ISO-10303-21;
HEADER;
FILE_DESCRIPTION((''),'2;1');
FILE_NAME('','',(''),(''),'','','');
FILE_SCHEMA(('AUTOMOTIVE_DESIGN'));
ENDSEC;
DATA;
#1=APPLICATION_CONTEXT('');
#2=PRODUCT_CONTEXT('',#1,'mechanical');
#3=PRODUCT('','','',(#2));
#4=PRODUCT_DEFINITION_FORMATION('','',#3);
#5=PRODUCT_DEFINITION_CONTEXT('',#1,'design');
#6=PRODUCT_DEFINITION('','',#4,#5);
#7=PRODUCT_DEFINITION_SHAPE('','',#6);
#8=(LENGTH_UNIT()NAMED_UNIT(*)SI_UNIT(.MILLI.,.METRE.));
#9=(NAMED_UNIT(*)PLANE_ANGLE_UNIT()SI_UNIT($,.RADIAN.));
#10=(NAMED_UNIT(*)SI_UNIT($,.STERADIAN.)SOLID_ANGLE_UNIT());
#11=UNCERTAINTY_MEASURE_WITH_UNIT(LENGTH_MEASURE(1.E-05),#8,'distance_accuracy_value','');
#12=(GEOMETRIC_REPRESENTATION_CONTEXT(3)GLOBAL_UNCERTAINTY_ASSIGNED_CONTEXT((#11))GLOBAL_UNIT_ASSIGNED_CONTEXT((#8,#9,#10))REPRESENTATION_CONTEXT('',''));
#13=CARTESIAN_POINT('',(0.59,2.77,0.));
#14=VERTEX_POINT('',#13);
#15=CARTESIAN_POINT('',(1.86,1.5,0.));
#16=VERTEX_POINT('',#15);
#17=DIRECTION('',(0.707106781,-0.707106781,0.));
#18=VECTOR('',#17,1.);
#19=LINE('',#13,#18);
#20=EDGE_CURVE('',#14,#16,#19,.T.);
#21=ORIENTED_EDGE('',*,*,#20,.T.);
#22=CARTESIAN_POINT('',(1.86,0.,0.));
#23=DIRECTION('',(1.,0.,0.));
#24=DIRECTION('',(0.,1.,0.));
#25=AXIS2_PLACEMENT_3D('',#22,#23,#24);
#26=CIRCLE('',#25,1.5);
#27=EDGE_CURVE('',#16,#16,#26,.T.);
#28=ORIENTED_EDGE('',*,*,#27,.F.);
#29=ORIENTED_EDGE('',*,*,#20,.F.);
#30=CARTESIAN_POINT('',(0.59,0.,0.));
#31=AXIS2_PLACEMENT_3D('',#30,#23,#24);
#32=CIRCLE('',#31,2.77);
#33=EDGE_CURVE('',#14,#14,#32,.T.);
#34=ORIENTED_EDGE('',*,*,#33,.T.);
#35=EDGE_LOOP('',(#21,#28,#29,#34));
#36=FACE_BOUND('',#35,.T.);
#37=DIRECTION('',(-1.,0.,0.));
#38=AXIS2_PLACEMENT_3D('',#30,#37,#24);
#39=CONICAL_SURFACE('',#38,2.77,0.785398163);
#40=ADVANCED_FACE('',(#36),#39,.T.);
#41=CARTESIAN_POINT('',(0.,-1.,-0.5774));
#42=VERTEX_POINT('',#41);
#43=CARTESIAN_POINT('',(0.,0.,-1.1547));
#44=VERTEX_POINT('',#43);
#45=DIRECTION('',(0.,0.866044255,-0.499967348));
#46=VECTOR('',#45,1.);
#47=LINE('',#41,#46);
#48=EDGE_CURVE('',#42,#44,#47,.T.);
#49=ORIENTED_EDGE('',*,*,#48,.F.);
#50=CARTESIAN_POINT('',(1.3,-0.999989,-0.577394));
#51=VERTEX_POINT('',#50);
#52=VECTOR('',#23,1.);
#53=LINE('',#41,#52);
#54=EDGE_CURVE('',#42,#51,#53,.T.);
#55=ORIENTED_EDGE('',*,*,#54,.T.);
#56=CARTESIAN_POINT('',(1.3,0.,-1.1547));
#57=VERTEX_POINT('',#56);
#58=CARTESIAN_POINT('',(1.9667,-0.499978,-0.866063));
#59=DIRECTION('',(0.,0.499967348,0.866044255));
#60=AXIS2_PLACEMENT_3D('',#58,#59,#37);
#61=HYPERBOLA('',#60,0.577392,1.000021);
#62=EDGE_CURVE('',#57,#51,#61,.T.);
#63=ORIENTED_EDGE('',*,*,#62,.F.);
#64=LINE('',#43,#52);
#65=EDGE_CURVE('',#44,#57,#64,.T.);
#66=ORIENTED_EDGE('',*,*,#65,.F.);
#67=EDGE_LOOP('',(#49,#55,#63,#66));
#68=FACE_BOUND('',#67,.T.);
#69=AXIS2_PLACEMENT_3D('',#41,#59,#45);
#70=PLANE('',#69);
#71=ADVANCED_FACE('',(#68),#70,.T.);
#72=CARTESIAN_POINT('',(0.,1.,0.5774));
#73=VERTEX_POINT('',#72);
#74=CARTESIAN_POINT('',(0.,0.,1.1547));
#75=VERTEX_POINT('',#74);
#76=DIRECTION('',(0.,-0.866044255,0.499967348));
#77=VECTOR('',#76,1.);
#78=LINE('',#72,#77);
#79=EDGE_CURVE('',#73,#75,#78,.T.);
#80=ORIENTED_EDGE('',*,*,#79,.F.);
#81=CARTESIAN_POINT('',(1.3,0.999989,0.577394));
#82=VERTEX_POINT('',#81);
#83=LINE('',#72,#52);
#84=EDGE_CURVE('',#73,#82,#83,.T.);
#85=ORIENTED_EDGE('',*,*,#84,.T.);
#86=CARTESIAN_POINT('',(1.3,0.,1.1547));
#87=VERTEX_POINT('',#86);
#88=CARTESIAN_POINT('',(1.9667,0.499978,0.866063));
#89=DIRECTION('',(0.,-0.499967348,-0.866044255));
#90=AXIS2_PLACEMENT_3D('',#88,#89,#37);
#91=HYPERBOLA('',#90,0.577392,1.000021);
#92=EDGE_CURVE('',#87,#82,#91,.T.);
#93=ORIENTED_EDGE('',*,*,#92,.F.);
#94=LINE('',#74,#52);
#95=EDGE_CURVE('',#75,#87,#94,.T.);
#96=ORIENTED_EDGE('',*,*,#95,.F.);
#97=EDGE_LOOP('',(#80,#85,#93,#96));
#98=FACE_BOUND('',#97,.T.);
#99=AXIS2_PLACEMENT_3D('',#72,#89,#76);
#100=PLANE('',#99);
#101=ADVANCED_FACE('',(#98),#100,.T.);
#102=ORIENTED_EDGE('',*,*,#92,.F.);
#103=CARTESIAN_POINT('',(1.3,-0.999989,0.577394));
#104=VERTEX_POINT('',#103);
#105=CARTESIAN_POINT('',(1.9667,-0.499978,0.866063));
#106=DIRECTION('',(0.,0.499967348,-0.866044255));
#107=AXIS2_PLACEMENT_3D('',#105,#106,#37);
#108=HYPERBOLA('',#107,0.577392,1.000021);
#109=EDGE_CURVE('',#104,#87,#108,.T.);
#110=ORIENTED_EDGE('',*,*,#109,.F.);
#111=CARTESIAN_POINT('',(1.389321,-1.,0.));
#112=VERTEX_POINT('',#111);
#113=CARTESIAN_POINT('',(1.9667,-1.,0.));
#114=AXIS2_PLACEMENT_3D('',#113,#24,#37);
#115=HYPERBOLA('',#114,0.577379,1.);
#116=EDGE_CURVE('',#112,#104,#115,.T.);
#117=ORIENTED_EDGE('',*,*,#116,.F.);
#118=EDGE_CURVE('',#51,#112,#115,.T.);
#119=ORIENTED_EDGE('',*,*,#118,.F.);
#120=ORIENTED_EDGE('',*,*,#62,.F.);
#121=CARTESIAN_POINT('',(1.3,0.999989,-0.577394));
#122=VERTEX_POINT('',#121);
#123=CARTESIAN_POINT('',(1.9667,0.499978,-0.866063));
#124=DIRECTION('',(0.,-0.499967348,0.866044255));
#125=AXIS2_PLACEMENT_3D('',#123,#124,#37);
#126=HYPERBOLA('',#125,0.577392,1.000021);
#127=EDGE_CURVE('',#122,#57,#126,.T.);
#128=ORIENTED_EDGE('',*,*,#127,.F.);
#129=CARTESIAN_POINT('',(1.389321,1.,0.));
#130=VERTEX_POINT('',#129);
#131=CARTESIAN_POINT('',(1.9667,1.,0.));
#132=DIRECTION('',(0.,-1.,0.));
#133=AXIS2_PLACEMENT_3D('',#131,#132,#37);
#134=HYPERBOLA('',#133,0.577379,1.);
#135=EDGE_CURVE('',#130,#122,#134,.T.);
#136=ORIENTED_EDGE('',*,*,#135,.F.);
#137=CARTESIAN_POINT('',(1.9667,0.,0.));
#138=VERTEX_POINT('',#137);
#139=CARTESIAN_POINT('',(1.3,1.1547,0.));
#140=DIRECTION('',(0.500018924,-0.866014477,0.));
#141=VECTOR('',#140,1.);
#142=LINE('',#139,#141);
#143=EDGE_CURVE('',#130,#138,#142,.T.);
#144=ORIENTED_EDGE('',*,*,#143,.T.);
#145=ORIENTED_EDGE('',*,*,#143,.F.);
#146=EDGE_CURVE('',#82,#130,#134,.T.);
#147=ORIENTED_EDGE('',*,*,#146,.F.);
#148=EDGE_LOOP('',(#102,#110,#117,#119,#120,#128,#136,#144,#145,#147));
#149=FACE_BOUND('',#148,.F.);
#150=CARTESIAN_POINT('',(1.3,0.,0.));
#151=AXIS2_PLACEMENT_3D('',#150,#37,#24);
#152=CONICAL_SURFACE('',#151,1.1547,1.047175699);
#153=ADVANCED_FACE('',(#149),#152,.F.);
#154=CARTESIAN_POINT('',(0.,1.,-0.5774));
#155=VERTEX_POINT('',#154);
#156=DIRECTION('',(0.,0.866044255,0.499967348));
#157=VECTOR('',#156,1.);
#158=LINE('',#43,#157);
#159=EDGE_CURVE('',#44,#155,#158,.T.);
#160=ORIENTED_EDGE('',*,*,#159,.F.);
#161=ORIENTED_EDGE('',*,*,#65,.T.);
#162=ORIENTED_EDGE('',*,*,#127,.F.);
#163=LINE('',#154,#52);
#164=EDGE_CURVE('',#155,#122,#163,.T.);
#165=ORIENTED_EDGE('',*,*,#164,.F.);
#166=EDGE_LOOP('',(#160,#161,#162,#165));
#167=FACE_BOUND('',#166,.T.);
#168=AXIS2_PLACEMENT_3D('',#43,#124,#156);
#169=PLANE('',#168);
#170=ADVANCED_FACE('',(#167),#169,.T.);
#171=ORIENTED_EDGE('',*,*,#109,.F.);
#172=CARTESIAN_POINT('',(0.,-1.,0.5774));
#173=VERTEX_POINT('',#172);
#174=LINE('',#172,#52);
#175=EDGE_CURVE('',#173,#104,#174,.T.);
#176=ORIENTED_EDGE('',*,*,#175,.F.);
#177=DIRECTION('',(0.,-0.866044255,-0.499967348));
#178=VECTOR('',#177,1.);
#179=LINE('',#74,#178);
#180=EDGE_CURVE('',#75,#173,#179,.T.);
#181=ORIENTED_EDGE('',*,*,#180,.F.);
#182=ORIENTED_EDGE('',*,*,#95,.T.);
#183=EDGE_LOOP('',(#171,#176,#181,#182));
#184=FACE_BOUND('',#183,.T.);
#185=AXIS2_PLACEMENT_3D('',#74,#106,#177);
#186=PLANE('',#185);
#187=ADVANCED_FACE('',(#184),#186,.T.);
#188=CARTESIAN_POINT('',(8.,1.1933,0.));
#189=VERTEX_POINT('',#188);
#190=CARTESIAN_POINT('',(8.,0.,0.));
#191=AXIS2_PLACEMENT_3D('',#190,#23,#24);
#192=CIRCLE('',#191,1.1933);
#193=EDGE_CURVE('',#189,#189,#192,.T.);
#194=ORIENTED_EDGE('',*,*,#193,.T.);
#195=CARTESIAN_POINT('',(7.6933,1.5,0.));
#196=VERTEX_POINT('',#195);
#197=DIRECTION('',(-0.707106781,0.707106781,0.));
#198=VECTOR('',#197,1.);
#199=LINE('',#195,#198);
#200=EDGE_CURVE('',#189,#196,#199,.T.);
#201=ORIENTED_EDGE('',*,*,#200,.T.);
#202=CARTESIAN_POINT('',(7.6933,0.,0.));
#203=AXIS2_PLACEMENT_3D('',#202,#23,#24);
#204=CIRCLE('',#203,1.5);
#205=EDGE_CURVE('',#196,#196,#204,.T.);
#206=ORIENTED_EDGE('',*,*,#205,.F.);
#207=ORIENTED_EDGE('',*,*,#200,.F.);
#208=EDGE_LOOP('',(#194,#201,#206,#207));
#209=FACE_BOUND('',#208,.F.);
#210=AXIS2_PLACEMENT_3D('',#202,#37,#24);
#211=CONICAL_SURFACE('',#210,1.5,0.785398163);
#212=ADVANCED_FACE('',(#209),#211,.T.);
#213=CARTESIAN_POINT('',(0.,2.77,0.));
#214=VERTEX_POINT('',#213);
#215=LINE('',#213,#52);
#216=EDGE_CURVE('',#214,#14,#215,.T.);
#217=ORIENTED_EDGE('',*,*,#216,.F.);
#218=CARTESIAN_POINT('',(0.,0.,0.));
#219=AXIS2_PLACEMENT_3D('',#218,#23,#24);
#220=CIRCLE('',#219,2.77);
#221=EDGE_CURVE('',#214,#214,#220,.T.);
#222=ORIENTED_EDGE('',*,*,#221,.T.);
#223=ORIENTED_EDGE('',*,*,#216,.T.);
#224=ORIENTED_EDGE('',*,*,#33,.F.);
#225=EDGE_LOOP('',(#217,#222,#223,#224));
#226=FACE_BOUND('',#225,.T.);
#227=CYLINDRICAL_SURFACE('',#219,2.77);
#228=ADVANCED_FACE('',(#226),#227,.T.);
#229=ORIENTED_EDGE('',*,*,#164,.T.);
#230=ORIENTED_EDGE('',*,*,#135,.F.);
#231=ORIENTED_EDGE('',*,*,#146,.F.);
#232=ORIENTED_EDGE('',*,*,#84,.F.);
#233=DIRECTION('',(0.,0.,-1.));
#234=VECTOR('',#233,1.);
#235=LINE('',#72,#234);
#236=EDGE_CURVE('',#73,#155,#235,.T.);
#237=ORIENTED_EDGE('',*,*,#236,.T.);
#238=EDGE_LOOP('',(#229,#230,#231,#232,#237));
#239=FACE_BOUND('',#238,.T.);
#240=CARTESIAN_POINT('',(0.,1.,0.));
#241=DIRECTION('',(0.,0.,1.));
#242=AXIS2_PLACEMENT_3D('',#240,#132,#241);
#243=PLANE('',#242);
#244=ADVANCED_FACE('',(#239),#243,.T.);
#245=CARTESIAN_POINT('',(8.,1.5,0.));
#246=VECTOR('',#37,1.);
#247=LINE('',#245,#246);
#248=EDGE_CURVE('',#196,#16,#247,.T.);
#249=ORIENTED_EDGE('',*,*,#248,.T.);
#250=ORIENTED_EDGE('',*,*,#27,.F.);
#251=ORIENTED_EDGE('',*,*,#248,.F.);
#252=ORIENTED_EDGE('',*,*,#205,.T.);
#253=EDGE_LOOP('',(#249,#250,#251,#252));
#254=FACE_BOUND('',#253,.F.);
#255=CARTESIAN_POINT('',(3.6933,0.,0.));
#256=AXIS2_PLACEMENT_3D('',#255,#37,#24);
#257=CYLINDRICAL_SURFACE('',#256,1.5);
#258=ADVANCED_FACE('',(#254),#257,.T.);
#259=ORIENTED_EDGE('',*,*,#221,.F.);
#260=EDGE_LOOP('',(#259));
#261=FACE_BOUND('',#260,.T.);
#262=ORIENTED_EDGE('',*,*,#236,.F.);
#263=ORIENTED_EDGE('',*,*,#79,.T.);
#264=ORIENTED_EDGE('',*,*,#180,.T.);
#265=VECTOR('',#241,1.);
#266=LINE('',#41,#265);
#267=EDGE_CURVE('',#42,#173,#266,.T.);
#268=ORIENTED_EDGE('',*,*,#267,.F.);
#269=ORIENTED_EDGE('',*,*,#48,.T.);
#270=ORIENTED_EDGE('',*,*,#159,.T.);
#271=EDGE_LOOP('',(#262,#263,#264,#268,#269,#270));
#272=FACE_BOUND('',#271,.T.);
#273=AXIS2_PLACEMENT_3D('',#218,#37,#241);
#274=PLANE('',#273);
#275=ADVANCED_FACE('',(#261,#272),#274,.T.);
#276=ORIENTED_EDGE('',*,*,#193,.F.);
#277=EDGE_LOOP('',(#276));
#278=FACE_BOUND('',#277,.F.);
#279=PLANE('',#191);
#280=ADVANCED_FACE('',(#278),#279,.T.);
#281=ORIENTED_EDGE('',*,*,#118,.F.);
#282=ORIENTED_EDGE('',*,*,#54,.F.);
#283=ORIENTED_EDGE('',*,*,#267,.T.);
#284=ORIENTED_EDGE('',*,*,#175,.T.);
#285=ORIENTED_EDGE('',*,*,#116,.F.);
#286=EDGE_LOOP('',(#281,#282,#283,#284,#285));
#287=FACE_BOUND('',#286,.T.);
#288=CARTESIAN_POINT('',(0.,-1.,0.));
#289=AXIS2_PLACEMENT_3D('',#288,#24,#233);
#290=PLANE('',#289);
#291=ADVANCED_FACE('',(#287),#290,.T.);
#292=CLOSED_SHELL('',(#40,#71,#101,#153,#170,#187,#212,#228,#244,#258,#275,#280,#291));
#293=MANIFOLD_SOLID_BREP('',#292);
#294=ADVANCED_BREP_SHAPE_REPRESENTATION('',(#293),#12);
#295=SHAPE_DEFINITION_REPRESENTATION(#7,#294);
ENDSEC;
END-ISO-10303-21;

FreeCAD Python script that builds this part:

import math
import FreeCAD as App
import Part
import Sketcher
from FreeCAD import Vector
Q = App.Units.Quantity


def edges_at(feature, points):
    """Names of the edges that pass closest to the given points."""
    edges = feature.Shape.Edges
    near = lambda p: min(range(len(edges)), key=lambda i: edges[i].distToShape(Part.Vertex(*p))[0])
    return sorted({f"Edge{near(p) + 1}" for p in points})

doc = App.newDocument("Part")
body = doc.addObject("PartDesign::Body", "Body")

# Sketch on XY plane
sketch1 = body.newObject("Sketcher::SketchObject", "Sketch")
sketch1.AttachmentSupport = (doc.getObject("XY_Plane"), [""])
sketch1.MapMode = "FlatFace"
sketch1.addGeometry([
    Part.LineSegment(Vector(2, 0, 0), Vector(8, 0, 0)),  # 0
    Part.LineSegment(Vector(8, 0, 0), Vector(8, 1.5, 0)),  # 1
    Part.LineSegment(Vector(8, 1.5, 0), Vector(1.9, 1.5, 0)),  # 2
    Part.LineSegment(Vector(1.9, 1.5, 0), Vector(0.6, 2.8, 0)),  # 3
    Part.LineSegment(Vector(0.6, 2.8, 0), Vector(0, 2.8, 0)),  # 4
    Part.LineSegment(Vector(0, 2.8, 0), Vector(0, 1.2, 0)),  # 5
    Part.LineSegment(Vector(0, 1.2, 0), Vector(1.3, 1.2, 0)),  # 6
    Part.LineSegment(Vector(1.3, 1.2, 0), Vector(2, 0, 0)),  # 7
], False)
sketch1.addConstraint([
    Sketcher.Constraint("Coincident", 0, 2, 1, 1),
    Sketcher.Constraint("Coincident", 1, 2, 2, 1),
    Sketcher.Constraint("Coincident", 2, 2, 3, 1),
    Sketcher.Constraint("Coincident", 3, 2, 4, 1),
    Sketcher.Constraint("Coincident", 4, 2, 5, 1),
    Sketcher.Constraint("Coincident", 5, 2, 6, 1),
    Sketcher.Constraint("Coincident", 6, 2, 7, 1),
    Sketcher.Constraint("Coincident", 7, 2, 0, 1),
    Sketcher.Constraint("Horizontal", 0),
    Sketcher.Constraint("Vertical", 1),
    Sketcher.Constraint("Horizontal", 2),
    Sketcher.Constraint("Horizontal", 4),
    Sketcher.Constraint("Vertical", 5),
    Sketcher.Constraint("Horizontal", 6),
    Sketcher.Constraint("PointOnObject", 0, 2, -1),
    Sketcher.Constraint("PointOnObject", 4, 2, -2),
    Sketcher.Constraint("DistanceX", 6, 1, 6, 2, 1.3),
    Sketcher.Constraint("DistanceX", -1, 1, 0, 2, 8.0),
    Sketcher.Constraint("DistanceX", -1, 1, 2, 2, 1.86),
    Sketcher.Constraint("Angle", 3, Q("135 deg")),
    Sketcher.Constraint("DistanceY", 1, 1, 1, 2, 1.5),
    Sketcher.Constraint("DistanceX", 4, 2, 4, 1, 0.59),
    Sketcher.Constraint("DistanceX", 0, 1, 0, 2, 6.0333),
    Sketcher.Constraint("DistanceY", 5, 2, 5, 1, 1.6153),
])
revolution = body.newObject("PartDesign::Revolution", "Revolution")
revolution.Profile = sketch1
revolution.ReferenceAxis = (sketch1, ["H_Axis"])
revolution.Angle = 360

# Sketch on YZ plane
sketch2 = body.newObject("Sketcher::SketchObject", "Sketch001")
sketch2.AttachmentSupport = (doc.getObject("YZ_Plane"), [""])
sketch2.MapMode = "FlatFace"
sketch2.addGeometry([
    Part.LineSegment(Vector(1, 0.6, 0), Vector(0, 1.2, 0)),  # 0
    Part.ArcOfCircle(Part.Circle(Vector(0, 0, 0), Vector(0, 0, 1), 1.2), math.radians(30), math.radians(90)),  # 1
    Part.ArcOfCircle(Part.Circle(Vector(0, 0, 0), Vector(0, 0, 1), 1.2), math.radians(90), math.radians(150)),  # 2
    Part.LineSegment(Vector(0, 1.2, 0), Vector(-1, 0.6, 0)),  # 3
    Part.ArcOfCircle(Part.Circle(Vector(0, 0, 0), Vector(0, 0, 1), 1.2), math.radians(-30), math.radians(30)),  # 4
    Part.LineSegment(Vector(1, 0.6, 0), Vector(1, -0.6, 0)),  # 5
    Part.LineSegment(Vector(-1, 0.6, 0), Vector(-1, -0.6, 0)),  # 6
    Part.ArcOfCircle(Part.Circle(Vector(0, 0, 0), Vector(0, 0, 1), 1.2), math.radians(150), math.radians(210)),  # 7
    Part.LineSegment(Vector(-1, -0.6, 0), Vector(0, -1.2, 0)),  # 8
    Part.ArcOfCircle(Part.Circle(Vector(0, 0, 0), Vector(0, 0, 1), 1.2), math.radians(-150), math.radians(-90)),  # 9
    Part.ArcOfCircle(Part.Circle(Vector(0, 0, 0), Vector(0, 0, 1), 1.2), math.radians(-90), math.radians(-30)),  # 10
    Part.LineSegment(Vector(0, -1.2, 0), Vector(1, -0.6, 0)),  # 11
], False)
sketch2.addConstraint([
    Sketcher.Constraint("Coincident", 0, 1, 1, 1),
    Sketcher.Constraint("Coincident", 1, 2, 0, 2),
    Sketcher.Constraint("Coincident", 2, 1, 3, 1),
    Sketcher.Constraint("Coincident", 3, 2, 2, 2),
    Sketcher.Constraint("Coincident", 4, 1, 5, 2),
    Sketcher.Constraint("Coincident", 5, 1, 4, 2),
    Sketcher.Constraint("Coincident", 6, 1, 7, 1),
    Sketcher.Constraint("Coincident", 7, 2, 6, 2),
    Sketcher.Constraint("Coincident", 8, 1, 9, 1),
    Sketcher.Constraint("Coincident", 9, 2, 8, 2),
    Sketcher.Constraint("Coincident", 10, 1, 11, 1),
    Sketcher.Constraint("Coincident", 11, 2, 10, 2),
    Sketcher.Constraint("Vertical", 5),
    Sketcher.Constraint("Vertical", 6),
    Sketcher.Constraint("Coincident", 1, 3, -1, 1),
    Sketcher.Constraint("Coincident", 2, 3, -1, 1),
    Sketcher.Constraint("Coincident", 4, 3, -1, 1),
    Sketcher.Constraint("Coincident", 7, 3, -1, 1),
    Sketcher.Constraint("Coincident", 9, 3, -1, 1),
    Sketcher.Constraint("Coincident", 10, 3, -1, 1),
    Sketcher.Constraint("Coincident", 2, 1, 1, 2),
    Sketcher.Constraint("Coincident", 5, 1, 0, 1),
    Sketcher.Constraint("Coincident", 6, 1, 3, 2),
    Sketcher.Constraint("Coincident", 8, 1, 7, 2),
    Sketcher.Constraint("Coincident", 10, 1, 9, 2),
    Sketcher.Constraint("PointOnObject", 1, 2, -2),
    Sketcher.Constraint("PointOnObject", 9, 2, -2),
    Sketcher.Constraint("Parallel", 0, 8),
    Sketcher.Constraint("Parallel", 3, 11),
    Sketcher.Constraint("DistanceX", -1, 1, 0, 1, 1.0),
    Sketcher.Constraint("Radius", 1, 1.1547),
])
pad1 = body.newObject("PartDesign::Pad", "Pad")
pad1.Profile = sketch2
pad1.Type = "UpToFirst"
doc.recompute()

chamfer = body.newObject("PartDesign::Chamfer", "Chamfer")
chamfer.Base = (pad1, edges_at(pad1, [(8, -1.5, 0)]))
chamfer.ChamferType = "Two distances"
chamfer.Size = 0.3067
chamfer.Size2 = 0.3067

doc.recompute()
